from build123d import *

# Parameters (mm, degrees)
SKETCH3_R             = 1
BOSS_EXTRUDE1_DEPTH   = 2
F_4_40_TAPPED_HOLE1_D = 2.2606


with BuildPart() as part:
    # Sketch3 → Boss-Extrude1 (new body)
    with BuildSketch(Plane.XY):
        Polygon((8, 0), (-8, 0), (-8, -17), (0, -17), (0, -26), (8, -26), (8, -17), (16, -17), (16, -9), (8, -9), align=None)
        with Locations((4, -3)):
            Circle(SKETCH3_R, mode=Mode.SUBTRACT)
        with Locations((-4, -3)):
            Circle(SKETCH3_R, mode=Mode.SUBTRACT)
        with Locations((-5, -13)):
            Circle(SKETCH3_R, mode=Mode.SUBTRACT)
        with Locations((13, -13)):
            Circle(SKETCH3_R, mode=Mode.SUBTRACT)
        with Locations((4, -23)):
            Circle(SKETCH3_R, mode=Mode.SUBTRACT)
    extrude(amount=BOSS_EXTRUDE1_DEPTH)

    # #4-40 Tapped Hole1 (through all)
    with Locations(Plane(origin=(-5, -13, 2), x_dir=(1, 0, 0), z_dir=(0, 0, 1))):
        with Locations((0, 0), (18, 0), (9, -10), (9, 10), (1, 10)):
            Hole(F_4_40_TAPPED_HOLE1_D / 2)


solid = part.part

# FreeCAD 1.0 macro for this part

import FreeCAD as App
import Part
import Sketcher

V = App.Vector
Q = App.Units.Quantity


def add_polygon(sketch, points):
    """Adds a closed chain of lines whose ends are joined by coincident constraints."""
    first, n = sketch.GeometryCount, len(points)
    for a, b in zip(points, points[1:] + points[:1]):
        sketch.addGeometry(Part.LineSegment(App.Vector(*a, 0), App.Vector(*b, 0)), False)
    for i in range(n):
        sketch.addConstraint(Sketcher.Constraint("Coincident", first + i, 2, first + (i + 1) % n, 1))

doc = App.newDocument("Part")
body = doc.addObject("PartDesign::Body", "Body")

sketch1 = doc.addObject("Sketcher::SketchObject", "Sketch")
body.addObject(sketch1)
sketch1.AttachmentSupport = (doc.XY_Plane, [""])
sketch1.MapMode = "FlatFace"
add_polygon(sketch1, [(8, 0), (-8, 0), (-8, -17), (0, -17), (0, -26), (8, -26), (8, -17), (16, -17), (16, -9), (8, -9)])
sketch1.addGeometry(Part.Circle(V(4, -23, 0), V(0, 0, 1), 1), False)
sketch1.addGeometry(Part.Circle(V(-5, -13, 0), V(0, 0, 1), 1), False)
sketch1.addGeometry(Part.Circle(V(-4, -3, 0), V(0, 0, 1), 1), False)
sketch1.addGeometry(Part.Circle(V(13, -13, 0), V(0, 0, 1), 1), False)
sketch1.addGeometry(Part.Circle(V(4, -3, 0), V(0, 0, 1), 1), False)
sketch1.addConstraint(Sketcher.Constraint("Horizontal", 0))
sketch1.addConstraint(Sketcher.Constraint("Vertical", 1))
sketch1.addConstraint(Sketcher.Constraint("Horizontal", 2))
sketch1.addConstraint(Sketcher.Constraint("Vertical", 3))
sketch1.addConstraint(Sketcher.Constraint("Horizontal", 4))
sketch1.addConstraint(Sketcher.Constraint("Vertical", 5))
sketch1.addConstraint(Sketcher.Constraint("Horizontal", 6))
sketch1.addConstraint(Sketcher.Constraint("Vertical", 7))
sketch1.addConstraint(Sketcher.Constraint("Horizontal", 8))
sketch1.addConstraint(Sketcher.Constraint("Vertical", 9))
sketch1.addConstraint(Sketcher.Constraint("Equal", 10, 11))
sketch1.addConstraint(Sketcher.Constraint("Equal", 11, 12))
sketch1.addConstraint(Sketcher.Constraint("Equal", 12, 13))
sketch1.addConstraint(Sketcher.Constraint("Equal", 13, 14))
sketch1.addConstraint(Sketcher.Constraint("Symmetric", 0, 2, 9, 2, -1, 1))
sketch1.addConstraint(Sketcher.Constraint("Symmetric", 12, 3, 14, 3, -2))
sketch1.addConstraint(Sketcher.Constraint("Symmetric", 1, 2, 5, 2, -2))
sketch1.addConstraint(Sketcher.Constraint("PointOnObject", 2, 2, -2))
sketch1.addConstraint(Sketcher.Constraint("Horizontal", 11, 3, 13, 3))
sketch1.addConstraint(Sketcher.Constraint("Vertical", 10, 3, 14, 3))
sketch1.addConstraint(Sketcher.Constraint("Equal", 4, 6))
sketch1.addConstraint(Sketcher.Constraint("Equal", 8, 7))
sketch1.addConstraint(Sketcher.Constraint("Equal", 5, 9))
sketch1.addConstraint(Sketcher.Constraint("Diameter", 10, Q("2 mm")))
sketch1.addConstraint(Sketcher.Constraint("DistanceX", 0, 2, 0, 1, Q("16 mm")))
sketch1.addConstraint(Sketcher.Constraint("DistanceY", 1, 2, 1, 1, Q("17 mm")))
sketch1.addConstraint(Sketcher.Constraint("DistanceX", -1, 1, 10, 3, Q("4 mm")))
sketch1.addConstraint(Sketcher.Constraint("DistanceY", 10, 3, -1, 1, Q("23 mm")))
sketch1.addConstraint(Sketcher.Constraint("DistanceX", 11, 3, -1, 1, Q("5 mm")))
sketch1.addConstraint(Sketcher.Constraint("DistanceY", 11, 3, -1, 1, Q("13 mm")))
sketch1.addConstraint(Sketcher.Constraint("DistanceY", 12, 3, -1, 1, Q("3 mm")))
sketch1.addConstraint(Sketcher.Constraint("DistanceX", -1, 1, 13, 3, Q("13 mm")))
pad1 = doc.addObject("PartDesign::Pad", "Pad")
body.addObject(pad1)
pad1.Profile = sketch1
pad1.Length = 2

sketch2 = doc.addObject("Sketcher::SketchObject", "Sketch001")
body.addObject(sketch2)
sketch2.AttachmentSupport = (doc.XY_Plane, [""])
sketch2.MapMode = "FlatFace"
sketch2.AttachmentOffset = App.Placement(V(0, 0, 2), App.Rotation())
sketch2.addGeometry(Part.Circle(V(-5, -13, 0), V(0, 0, 1), 1.1), False)
sketch2.addGeometry(Part.Circle(V(13, -13, 0), V(0, 0, 1), 1.1), False)
sketch2.addGeometry(Part.Circle(V(4, -23, 0), V(0, 0, 1), 1.1), False)
sketch2.addGeometry(Part.Circle(V(4, -3, 0), V(0, 0, 1), 1.1), False)
sketch2.addGeometry(Part.Circle(V(-4, -3, 0), V(0, 0, 1), 1.1), False)
sketch2.addConstraint(Sketcher.Constraint("Equal", 0, 1))
sketch2.addConstraint(Sketcher.Constraint("Equal", 1, 2))
sketch2.addConstraint(Sketcher.Constraint("Equal", 2, 3))
sketch2.addConstraint(Sketcher.Constraint("Equal", 3, 4))
sketch2.addConstraint(Sketcher.Constraint("Symmetric", 3, 3, 4, 3, -2))
sketch2.addConstraint(Sketcher.Constraint("Horizontal", 0, 3, 1, 3))
sketch2.addConstraint(Sketcher.Constraint("Vertical", 2, 3, 3, 3))
sketch2.addConstraint(Sketcher.Constraint("DistanceX", 0, 3, -1, 1, Q("5 mm")))
sketch2.addConstraint(Sketcher.Constraint("DistanceY", 0, 3, -1, 1, Q("13 mm")))
sketch2.addConstraint(Sketcher.Constraint("DistanceX", -1, 1, 1, 3, Q("13 mm")))
sketch2.addConstraint(Sketcher.Constraint("DistanceX", -1, 1, 2, 3, Q("4 mm")))
sketch2.addConstraint(Sketcher.Constraint("DistanceY", 2, 3, -1, 1, Q("23 mm")))
sketch2.addConstraint(Sketcher.Constraint("DistanceY", 3, 3, -1, 1, Q("3 mm")))
sketch2.addConstraint(Sketcher.Constraint("Diameter", 0, Q("2.2606 mm")))
doc.recompute()
hole = doc.addObject("PartDesign::Hole", "Hole")
body.addObject(hole)
hole.Profile = sketch2
hole.ThreadType = "None"
hole.Diameter = 2.2606
hole.DepthType = "ThroughAll"

doc.recompute()
